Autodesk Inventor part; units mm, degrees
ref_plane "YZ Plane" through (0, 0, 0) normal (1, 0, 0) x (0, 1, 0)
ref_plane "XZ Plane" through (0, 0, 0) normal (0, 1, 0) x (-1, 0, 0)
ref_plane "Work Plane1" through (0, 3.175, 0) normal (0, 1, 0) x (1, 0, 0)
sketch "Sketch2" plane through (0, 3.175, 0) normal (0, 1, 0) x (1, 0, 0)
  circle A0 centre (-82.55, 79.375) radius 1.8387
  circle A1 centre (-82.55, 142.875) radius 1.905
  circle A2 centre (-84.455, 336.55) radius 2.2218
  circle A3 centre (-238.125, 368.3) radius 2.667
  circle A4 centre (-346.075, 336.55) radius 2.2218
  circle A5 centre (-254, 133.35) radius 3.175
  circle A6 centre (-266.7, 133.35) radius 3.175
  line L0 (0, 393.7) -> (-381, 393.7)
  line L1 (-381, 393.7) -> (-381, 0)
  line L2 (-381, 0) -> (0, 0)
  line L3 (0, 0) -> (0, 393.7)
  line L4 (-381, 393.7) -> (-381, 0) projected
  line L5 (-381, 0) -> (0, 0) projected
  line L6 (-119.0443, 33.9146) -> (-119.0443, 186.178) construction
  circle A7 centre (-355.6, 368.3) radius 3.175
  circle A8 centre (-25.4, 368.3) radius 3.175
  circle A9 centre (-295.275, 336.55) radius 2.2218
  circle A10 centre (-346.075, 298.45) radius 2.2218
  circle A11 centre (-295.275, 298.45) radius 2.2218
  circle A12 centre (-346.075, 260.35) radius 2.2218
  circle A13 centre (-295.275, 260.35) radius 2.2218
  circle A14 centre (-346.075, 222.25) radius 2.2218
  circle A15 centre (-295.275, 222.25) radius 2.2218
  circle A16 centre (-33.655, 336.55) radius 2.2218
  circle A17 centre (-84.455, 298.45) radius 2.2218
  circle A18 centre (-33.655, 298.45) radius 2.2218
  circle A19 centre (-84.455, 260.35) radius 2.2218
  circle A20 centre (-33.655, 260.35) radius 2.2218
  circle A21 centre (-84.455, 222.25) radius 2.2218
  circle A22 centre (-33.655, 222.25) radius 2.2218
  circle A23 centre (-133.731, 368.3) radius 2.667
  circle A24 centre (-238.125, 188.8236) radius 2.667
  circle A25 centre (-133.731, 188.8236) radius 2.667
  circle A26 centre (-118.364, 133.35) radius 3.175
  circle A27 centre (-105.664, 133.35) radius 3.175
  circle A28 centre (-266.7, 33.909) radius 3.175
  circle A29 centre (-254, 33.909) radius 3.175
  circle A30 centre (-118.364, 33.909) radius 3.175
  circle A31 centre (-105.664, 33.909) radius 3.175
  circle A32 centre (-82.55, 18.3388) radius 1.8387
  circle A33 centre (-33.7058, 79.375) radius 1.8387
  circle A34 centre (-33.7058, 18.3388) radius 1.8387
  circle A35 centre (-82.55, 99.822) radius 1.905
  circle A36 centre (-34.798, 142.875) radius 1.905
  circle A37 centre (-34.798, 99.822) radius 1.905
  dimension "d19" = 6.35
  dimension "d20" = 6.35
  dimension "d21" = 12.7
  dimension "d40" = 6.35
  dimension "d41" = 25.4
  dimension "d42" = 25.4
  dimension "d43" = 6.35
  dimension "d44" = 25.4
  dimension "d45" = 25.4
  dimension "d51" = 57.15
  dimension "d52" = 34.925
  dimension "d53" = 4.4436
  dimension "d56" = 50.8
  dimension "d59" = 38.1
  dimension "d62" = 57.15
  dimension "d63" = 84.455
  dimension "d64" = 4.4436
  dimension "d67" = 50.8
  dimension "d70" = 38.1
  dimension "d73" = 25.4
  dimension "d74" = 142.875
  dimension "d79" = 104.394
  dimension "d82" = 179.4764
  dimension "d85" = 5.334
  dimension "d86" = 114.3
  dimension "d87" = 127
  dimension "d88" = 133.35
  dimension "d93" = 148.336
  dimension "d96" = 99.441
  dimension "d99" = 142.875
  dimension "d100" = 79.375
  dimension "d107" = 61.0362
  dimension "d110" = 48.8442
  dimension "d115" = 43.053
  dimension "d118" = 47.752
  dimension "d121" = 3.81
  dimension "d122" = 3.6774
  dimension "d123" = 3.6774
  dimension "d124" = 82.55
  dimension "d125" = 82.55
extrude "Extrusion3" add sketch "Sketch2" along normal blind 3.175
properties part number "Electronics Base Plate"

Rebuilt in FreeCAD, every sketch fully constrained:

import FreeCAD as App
import Part
import Sketcher

V = App.Vector
Q = App.Units.Quantity


def add_polygon(sketch, points):
    """Adds a closed chain of lines whose ends are joined by coincident constraints."""
    first, n = sketch.GeometryCount, len(points)
    for a, b in zip(points, points[1:] + points[:1]):
        sketch.addGeometry(Part.LineSegment(App.Vector(*a, 0), App.Vector(*b, 0)), False)
    for i in range(n):
        sketch.addConstraint(Sketcher.Constraint("Coincident", first + i, 2, first + (i + 1) % n, 1))

doc = App.newDocument("Part")
body = doc.addObject("PartDesign::Body", "Body")

# Sketch on XZ plane
sketch1 = body.newObject("Sketcher::SketchObject", "Sketch")
sketch1.AttachmentSupport = (doc.getObject("XZ_Plane"), [""])
sketch1.MapMode = "FlatFace"
sketch1.AttachmentOffset = App.Placement(V(0, 0, -0.125 * 25.4), App.Rotation())
add_polygon(sketch1, [(0, 0), (0, -393.7), (-381, -393.7), (-381, 0)])  # lines 0-3
sketch1.addGeometry(Part.Circle(V(-266.7, -33.9, 0), V(0, 0, 1), 3.2), False)  # 4
sketch1.addGeometry(Part.Circle(V(-254, -33.9, 0), V(0, 0, 1), 3.2), False)  # 5
sketch1.addGeometry(Part.Circle(V(-266.7, -133.3, 0), V(0, 0, 1), 3.2), False)  # 6
sketch1.addGeometry(Part.Circle(V(-254, -133.3, 0), V(0, 0, 1), 3.2), False)  # 7
sketch1.addGeometry(Part.Circle(V(-238.1, -188.8, 0), V(0, 0, 1), 2.7), False)  # 8
sketch1.addGeometry(Part.Circle(V(-118.4, -33.9, 0), V(0, 0, 1), 3.2), False)  # 9
sketch1.addGeometry(Part.Circle(V(-105.7, -33.9, 0), V(0, 0, 1), 3.2), False)  # 10
sketch1.addGeometry(Part.Circle(V(-82.5, -18.3, 0), V(0, 0, 1), 1.8), False)  # 11
sketch1.addGeometry(Part.Circle(V(-33.7, -18.3, 0), V(0, 0, 1), 1.8), False)  # 12
sketch1.addGeometry(Part.Circle(V(-82.5, -79.4, 0), V(0, 0, 1), 1.8), False)  # 13
sketch1.addGeometry(Part.Circle(V(-33.7, -79.4, 0), V(0, 0, 1), 1.8), False)  # 14
sketch1.addGeometry(Part.Circle(V(-118.4, -133.3, 0), V(0, 0, 1), 3.2), False)  # 15
sketch1.addGeometry(Part.Circle(V(-105.7, -133.3, 0), V(0, 0, 1), 3.2), False)  # 16
sketch1.addGeometry(Part.Circle(V(-133.7, -188.8, 0), V(0, 0, 1), 2.7), False)  # 17
sketch1.addGeometry(Part.Circle(V(-82.5, -99.8, 0), V(0, 0, 1), 1.9), False)  # 18
sketch1.addGeometry(Part.Circle(V(-82.5, -142.9, 0), V(0, 0, 1), 1.9), False)  # 19
sketch1.addGeometry(Part.Circle(V(-34.8, -99.8, 0), V(0, 0, 1), 1.9), False)  # 20
sketch1.addGeometry(Part.Circle(V(-34.8, -142.9, 0), V(0, 0, 1), 1.9), False)  # 21
sketch1.addGeometry(Part.Circle(V(-346.1, -222.2, 0), V(0, 0, 1), 2.2), False)  # 22
sketch1.addGeometry(Part.Circle(V(-295.3, -222.2, 0), V(0, 0, 1), 2.2), False)  # 23
sketch1.addGeometry(Part.Circle(V(-346.1, -260.4, 0), V(0, 0, 1), 2.2), False)  # 24
sketch1.addGeometry(Part.Circle(V(-295.3, -260.4, 0), V(0, 0, 1), 2.2), False)  # 25
sketch1.addGeometry(Part.Circle(V(-346.1, -298.4, 0), V(0, 0, 1), 2.2), False)  # 26
sketch1.addGeometry(Part.Circle(V(-346.1, -336.6, 0), V(0, 0, 1), 2.2), False)  # 27
sketch1.addGeometry(Part.Circle(V(-295.3, -298.4, 0), V(0, 0, 1), 2.2), False)  # 28
sketch1.addGeometry(Part.Circle(V(-295.3, -336.6, 0), V(0, 0, 1), 2.2), False)  # 29
sketch1.addGeometry(Part.Circle(V(-355.6, -368.3, 0), V(0, 0, 1), 3.2), False)  # 30
sketch1.addGeometry(Part.Circle(V(-238.1, -368.3, 0), V(0, 0, 1), 2.7), False)  # 31
sketch1.addGeometry(Part.Circle(V(-84.5, -222.2, 0), V(0, 0, 1), 2.2), False)  # 32
sketch1.addGeometry(Part.Circle(V(-33.7, -222.2, 0), V(0, 0, 1), 2.2), False)  # 33
sketch1.addGeometry(Part.Circle(V(-84.5, -260.4, 0), V(0, 0, 1), 2.2), False)  # 34
sketch1.addGeometry(Part.Circle(V(-33.7, -260.4, 0), V(0, 0, 1), 2.2), False)  # 35
sketch1.addGeometry(Part.Circle(V(-133.7, -368.3, 0), V(0, 0, 1), 2.7), False)  # 36
sketch1.addGeometry(Part.Circle(V(-84.5, -298.4, 0), V(0, 0, 1), 2.2), False)  # 37
sketch1.addGeometry(Part.Circle(V(-84.5, -336.6, 0), V(0, 0, 1), 2.2), False)  # 38
sketch1.addGeometry(Part.Circle(V(-33.7, -298.4, 0), V(0, 0, 1), 2.2), False)  # 39
sketch1.addGeometry(Part.Circle(V(-33.7, -336.6, 0), V(0, 0, 1), 2.2), False)  # 40
sketch1.addGeometry(Part.Circle(V(-25.4, -368.3, 0), V(0, 0, 1), 3.2), False)  # 41
sketch1.addConstraint([
    Sketcher.Constraint("Vertical", 0),
    Sketcher.Constraint("Horizontal", 1),
    Sketcher.Constraint("Vertical", 2),
    Sketcher.Constraint("Horizontal", 3),
    Sketcher.Constraint("Coincident", 3, 2, -1, 1),
    Sketcher.Constraint("Equal", 4, 5),
    Sketcher.Constraint("Equal", 5, 6),
    Sketcher.Constraint("Equal", 6, 7),
    Sketcher.Constraint("Equal", 7, 9),
    Sketcher.Constraint("Equal", 9, 10),
    Sketcher.Constraint("Equal", 11, 12),
    Sketcher.Constraint("Equal", 12, 13),
    Sketcher.Constraint("Equal", 13, 14),
    Sketcher.Constraint("Equal", 10, 15),
    Sketcher.Constraint("Equal", 15, 16),
    Sketcher.Constraint("Equal", 8, 17),
    Sketcher.Constraint("Equal", 18, 19),
    Sketcher.Constraint("Equal", 19, 20),
    Sketcher.Constraint("Equal", 20, 21),
    Sketcher.Constraint("Equal", 22, 23),
    Sketcher.Constraint("Equal", 23, 24),
    Sketcher.Constraint("Equal", 24, 25),
    Sketcher.Constraint("Equal", 25, 26),
    Sketcher.Constraint("Equal", 26, 27),
    Sketcher.Constraint("Equal", 27, 28),
    Sketcher.Constraint("Equal", 28, 29),
    Sketcher.Constraint("Equal", 16, 30),
    Sketcher.Constraint("Equal", 17, 31),
    Sketcher.Constraint("Equal", 29, 32),
    Sketcher.Constraint("Equal", 32, 33),
    Sketcher.Constraint("Equal", 33, 34),
    Sketcher.Constraint("Equal", 34, 35),
    Sketcher.Constraint("Equal", 31, 36),
    Sketcher.Constraint("Equal", 35, 37),
    Sketcher.Constraint("Equal", 37, 38),
    Sketcher.Constraint("Equal", 38, 39),
    Sketcher.Constraint("Equal", 39, 40),
    Sketcher.Constraint("Equal", 30, 41),
    Sketcher.Constraint("Horizontal", 4, 3, 5, 3),
    Sketcher.Constraint("Horizontal", 6, 3, 7, 3),
    Sketcher.Constraint("Horizontal", 5, 3, 9, 3),
    Sketcher.Constraint("Horizontal", 9, 3, 10, 3),
    Sketcher.Constraint("Horizontal", 11, 3, 12, 3),
    Sketcher.Constraint("Horizontal", 13, 3, 14, 3),
    Sketcher.Constraint("Horizontal", 7, 3, 15, 3),
    Sketcher.Constraint("Horizontal", 15, 3, 16, 3),
    Sketcher.Constraint("Horizontal", 8, 3, 17, 3),
    Sketcher.Constraint("Horizontal", 18, 3, 20, 3),
    Sketcher.Constraint("Horizontal", 19, 3, 21, 3),
    Sketcher.Constraint("Horizontal", 22, 3, 23, 3),
    Sketcher.Constraint("Horizontal", 24, 3, 25, 3),
    Sketcher.Constraint("Horizontal", 26, 3, 28, 3),
    Sketcher.Constraint("Horizontal", 27, 3, 29, 3),
    Sketcher.Constraint("Horizontal", 30, 3, 31, 3),
    Sketcher.Constraint("Horizontal", 23, 3, 32, 3),
    Sketcher.Constraint("Horizontal", 32, 3, 33, 3),
    Sketcher.Constraint("Horizontal", 25, 3, 34, 3),
    Sketcher.Constraint("Horizontal", 34, 3, 35, 3),
    Sketcher.Constraint("Horizontal", 31, 3, 36, 3),
    Sketcher.Constraint("Horizontal", 28, 3, 37, 3),
    Sketcher.Constraint("Horizontal", 29, 3, 38, 3),
    Sketcher.Constraint("Horizontal", 37, 3, 39, 3),
    Sketcher.Constraint("Horizontal", 38, 3, 40, 3),
    Sketcher.Constraint("Horizontal", 36, 3, 41, 3),
    Sketcher.Constraint("Vertical", 4, 3, 6, 3),
    Sketcher.Constraint("Vertical", 5, 3, 7, 3),
    Sketcher.Constraint("Vertical", 11, 3, 13, 3),
    Sketcher.Constraint("Vertical", 12, 3, 14, 3),
    Sketcher.Constraint("Vertical", 9, 3, 15, 3),
    Sketcher.Constraint("Vertical", 10, 3, 16, 3),
    Sketcher.Constraint("Vertical", 13, 3, 18, 3),
    Sketcher.Constraint("Vertical", 18, 3, 19, 3),
    Sketcher.Constraint("Vertical", 20, 3, 21, 3),
    Sketcher.Constraint("Vertical", 22, 3, 24, 3),
    Sketcher.Constraint("Vertical", 23, 3, 25, 3),
    Sketcher.Constraint("Vertical", 24, 3, 26, 3),
    Sketcher.Constraint("Vertical", 26, 3, 27, 3),
    Sketcher.Constraint("Vertical", 25, 3, 28, 3),
    Sketcher.Constraint("Vertical", 28, 3, 29, 3),
    Sketcher.Constraint("Vertical", 8, 3, 31, 3),
    Sketcher.Constraint("Vertical", 32, 3, 34, 3),
    Sketcher.Constraint("Vertical", 33, 3, 35, 3),
    Sketcher.Constraint("Vertical", 17, 3, 36, 3),
    Sketcher.Constraint("Vertical", 34, 3, 37, 3),
    Sketcher.Constraint("Vertical", 37, 3, 38, 3),
    Sketcher.Constraint("Vertical", 35, 3, 39, 3),
    Sketcher.Constraint("Vertical", 39, 3, 40, 3),
    Sketcher.Constraint("Diameter", 4, Q("0.25 in")),
    Sketcher.Constraint("Diameter", 8, Q("0.21 in")),
    Sketcher.Constraint("Diameter", 18, Q("0.15 in")),
    Sketcher.Constraint("DistanceX", 41, 3, -1, 1, Q("1 in")),
    Sketcher.Constraint("DistanceX", 22, 3, 23, 3, Q("2 in")),
    Sketcher.Constraint("DistanceY", 24, 3, 6, 3, Q("5 in")),
    Sketcher.Constraint("DistanceX", 32, 3, 33, 3, Q("2 in")),
    Sketcher.Constraint("DistanceY", 0, 2, 41, 3, Q("1 in")),
    Sketcher.Constraint("DistanceX", 1, 2, 30, 3, Q("1 in")),
    Sketcher.Constraint("DistanceX", 2, 2, 5, 3, Q("5 in")),
    Sketcher.Constraint("DistanceX", 4, 3, 5, 3, Q("0.5 in")),
    Sketcher.Constraint("DistanceX", 9, 3, 10, 3, Q("0.5 in")),
    Sketcher.Constraint("DistanceY", 24, 3, 22, 3, Q("1.5 in")),
    Sketcher.Constraint("DistanceY", 26, 3, 24, 3, Q("1.5 in")),
    Sketcher.Constraint("DistanceY", 27, 3, 26, 3, Q("1.5 in")),
    Sketcher.Constraint("Diameter", 11, 3.6774),
    Sketcher.Constraint("Diameter", 22, 4.4436),
    Sketcher.Constraint("DistanceX", 1, 2, 1, 1, Q("15 in")),
    Sketcher.Constraint("DistanceY", 6, 3, -1, 1, Q("5.25 in")),
    Sketcher.Constraint("DistanceX", 11, 3, -1, 1, Q("3.25 in")),
    Sketcher.Constraint("DistanceX", 4, 3, 9, 3, Q("5.84 in")),
    Sketcher.Constraint("DistanceX", 8, 3, 17, 3, Q("4.11 in")),
    Sketcher.Constraint("DistanceX", 18, 3, 20, 3, Q("1.88 in")),
    Sketcher.Constraint("DistanceX", 23, 3, 8, 3, Q("2.25 in")),
    Sketcher.Constraint("DistanceY", 0, 2, 40, 3, Q("2.25 in")),
    Sketcher.Constraint("DistanceY", 13, 3, -1, 1, Q("3.125 in")),
    Sketcher.Constraint("DistanceY", 19, 3, -1, 1, Q("5.625 in")),
    Sketcher.Constraint("DistanceX", 32, 3, -1, 1, Q("3.325 in")),
    Sketcher.Constraint("DistanceY", 6, 3, 4, 3, Q("3.915 in")),
    Sketcher.Constraint("DistanceX", 11, 3, 12, 3, Q("1.923 in")),
    Sketcher.Constraint("DistanceY", 13, 3, 11, 3, Q("2.403 in")),
    Sketcher.Constraint("DistanceY", 19, 3, 18, 3, Q("1.695 in")),
    Sketcher.Constraint("DistanceX", 22, 3, 6, 3, Q("3.125 in")),
    Sketcher.Constraint("DistanceY", 8, 3, -1, 1, Q("7.434 in")),
])
pad1 = body.newObject("PartDesign::Pad", "Pad")
pad1.Profile = sketch1
pad1.Length = Q("0.125 in")
pad1.Reversed = True

doc.recompute()
